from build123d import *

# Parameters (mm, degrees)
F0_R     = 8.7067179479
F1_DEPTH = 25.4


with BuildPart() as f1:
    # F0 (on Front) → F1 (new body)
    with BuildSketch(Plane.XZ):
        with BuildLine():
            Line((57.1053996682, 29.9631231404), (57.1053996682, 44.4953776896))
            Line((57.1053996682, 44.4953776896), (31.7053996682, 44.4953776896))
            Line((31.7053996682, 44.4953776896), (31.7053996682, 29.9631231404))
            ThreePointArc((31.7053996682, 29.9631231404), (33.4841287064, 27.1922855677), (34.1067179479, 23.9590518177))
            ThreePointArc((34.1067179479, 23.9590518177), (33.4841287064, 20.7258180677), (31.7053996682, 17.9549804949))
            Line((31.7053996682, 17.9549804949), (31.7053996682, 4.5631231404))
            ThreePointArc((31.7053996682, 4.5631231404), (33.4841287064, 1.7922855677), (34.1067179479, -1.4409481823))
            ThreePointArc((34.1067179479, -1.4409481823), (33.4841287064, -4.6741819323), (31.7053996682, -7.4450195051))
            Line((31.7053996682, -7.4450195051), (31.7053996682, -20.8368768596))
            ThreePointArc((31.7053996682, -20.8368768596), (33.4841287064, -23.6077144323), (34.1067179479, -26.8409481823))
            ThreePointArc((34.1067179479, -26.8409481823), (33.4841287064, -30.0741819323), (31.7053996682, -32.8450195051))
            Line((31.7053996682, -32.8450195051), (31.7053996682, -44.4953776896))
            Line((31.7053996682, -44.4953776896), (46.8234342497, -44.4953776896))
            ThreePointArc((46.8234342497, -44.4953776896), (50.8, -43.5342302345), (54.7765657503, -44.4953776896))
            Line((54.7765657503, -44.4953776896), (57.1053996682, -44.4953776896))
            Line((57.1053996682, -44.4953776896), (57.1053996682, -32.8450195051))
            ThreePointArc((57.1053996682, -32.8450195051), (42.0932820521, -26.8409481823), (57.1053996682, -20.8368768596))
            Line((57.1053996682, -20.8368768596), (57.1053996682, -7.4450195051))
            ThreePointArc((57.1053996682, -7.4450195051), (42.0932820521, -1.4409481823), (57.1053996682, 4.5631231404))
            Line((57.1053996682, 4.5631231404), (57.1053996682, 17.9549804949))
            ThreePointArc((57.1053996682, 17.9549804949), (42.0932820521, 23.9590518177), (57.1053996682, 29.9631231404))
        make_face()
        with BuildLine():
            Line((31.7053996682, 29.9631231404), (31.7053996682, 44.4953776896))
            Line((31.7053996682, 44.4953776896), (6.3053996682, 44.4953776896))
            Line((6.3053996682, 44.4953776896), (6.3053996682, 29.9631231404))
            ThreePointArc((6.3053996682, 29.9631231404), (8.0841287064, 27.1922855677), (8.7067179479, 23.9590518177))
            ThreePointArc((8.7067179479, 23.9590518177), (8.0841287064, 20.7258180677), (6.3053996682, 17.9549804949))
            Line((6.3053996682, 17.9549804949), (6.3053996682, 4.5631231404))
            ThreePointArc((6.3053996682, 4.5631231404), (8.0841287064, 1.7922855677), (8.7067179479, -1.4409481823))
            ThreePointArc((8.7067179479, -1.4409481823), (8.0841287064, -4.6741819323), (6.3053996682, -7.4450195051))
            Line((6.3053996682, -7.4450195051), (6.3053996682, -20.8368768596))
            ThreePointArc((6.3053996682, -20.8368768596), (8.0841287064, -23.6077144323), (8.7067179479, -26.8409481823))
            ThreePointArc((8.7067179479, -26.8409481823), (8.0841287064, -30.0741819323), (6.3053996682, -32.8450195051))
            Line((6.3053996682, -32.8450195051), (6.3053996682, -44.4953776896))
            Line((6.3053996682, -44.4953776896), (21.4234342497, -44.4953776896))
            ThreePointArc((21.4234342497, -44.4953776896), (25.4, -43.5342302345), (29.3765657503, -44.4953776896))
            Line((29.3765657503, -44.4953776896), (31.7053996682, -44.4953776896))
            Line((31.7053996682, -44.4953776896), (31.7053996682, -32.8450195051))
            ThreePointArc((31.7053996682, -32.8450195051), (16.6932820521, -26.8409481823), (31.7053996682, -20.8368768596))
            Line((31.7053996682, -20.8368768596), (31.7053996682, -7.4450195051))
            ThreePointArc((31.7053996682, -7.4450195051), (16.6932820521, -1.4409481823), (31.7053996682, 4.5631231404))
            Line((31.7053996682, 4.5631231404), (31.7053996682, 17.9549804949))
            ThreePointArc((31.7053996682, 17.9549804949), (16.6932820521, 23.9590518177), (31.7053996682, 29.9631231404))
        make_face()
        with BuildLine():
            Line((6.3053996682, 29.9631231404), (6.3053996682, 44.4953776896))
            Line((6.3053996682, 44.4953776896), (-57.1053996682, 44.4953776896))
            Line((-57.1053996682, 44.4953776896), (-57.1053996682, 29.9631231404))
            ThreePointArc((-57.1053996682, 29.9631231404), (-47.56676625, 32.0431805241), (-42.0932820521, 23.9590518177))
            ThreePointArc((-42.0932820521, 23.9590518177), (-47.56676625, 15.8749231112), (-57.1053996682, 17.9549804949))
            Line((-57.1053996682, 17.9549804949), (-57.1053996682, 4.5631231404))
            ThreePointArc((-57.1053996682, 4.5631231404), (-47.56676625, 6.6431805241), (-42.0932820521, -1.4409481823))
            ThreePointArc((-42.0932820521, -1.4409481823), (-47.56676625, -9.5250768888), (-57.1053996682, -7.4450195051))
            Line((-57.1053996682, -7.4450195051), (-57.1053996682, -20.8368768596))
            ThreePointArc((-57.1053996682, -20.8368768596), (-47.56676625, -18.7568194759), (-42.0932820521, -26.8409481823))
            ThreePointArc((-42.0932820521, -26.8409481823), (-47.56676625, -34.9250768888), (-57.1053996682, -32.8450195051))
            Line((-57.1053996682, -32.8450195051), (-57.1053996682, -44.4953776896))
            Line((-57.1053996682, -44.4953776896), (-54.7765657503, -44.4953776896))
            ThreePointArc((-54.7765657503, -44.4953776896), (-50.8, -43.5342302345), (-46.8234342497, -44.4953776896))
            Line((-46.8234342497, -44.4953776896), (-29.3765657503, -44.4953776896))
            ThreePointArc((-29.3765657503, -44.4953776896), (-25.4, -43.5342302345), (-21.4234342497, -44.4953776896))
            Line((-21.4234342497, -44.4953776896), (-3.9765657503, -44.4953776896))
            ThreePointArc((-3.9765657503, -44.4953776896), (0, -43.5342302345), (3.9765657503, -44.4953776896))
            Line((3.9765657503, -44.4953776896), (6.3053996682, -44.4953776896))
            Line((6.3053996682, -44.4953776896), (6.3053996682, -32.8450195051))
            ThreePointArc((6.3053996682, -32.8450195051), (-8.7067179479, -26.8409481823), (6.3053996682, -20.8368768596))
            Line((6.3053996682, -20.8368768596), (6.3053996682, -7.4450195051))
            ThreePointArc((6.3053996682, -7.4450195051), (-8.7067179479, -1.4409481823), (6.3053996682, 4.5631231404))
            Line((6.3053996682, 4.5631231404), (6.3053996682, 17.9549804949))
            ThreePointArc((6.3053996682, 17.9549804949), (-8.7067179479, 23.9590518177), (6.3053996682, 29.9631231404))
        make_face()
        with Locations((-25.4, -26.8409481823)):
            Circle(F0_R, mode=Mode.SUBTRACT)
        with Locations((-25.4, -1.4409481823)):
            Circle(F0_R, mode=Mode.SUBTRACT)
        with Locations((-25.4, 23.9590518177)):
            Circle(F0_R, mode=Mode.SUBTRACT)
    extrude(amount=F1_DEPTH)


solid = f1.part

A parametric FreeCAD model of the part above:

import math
import FreeCAD as App
import Part
import Sketcher
from FreeCAD import Vector
Q = App.Units.Quantity

doc = App.newDocument("Part")
body = doc.addObject("PartDesign::Body", "Body")

sketch1 = doc.addObject("Sketcher::SketchObject", "Sketch")
body.addObject(sketch1)
sketch1.AttachmentSupport = (doc.XZ_Plane, [""])
sketch1.MapMode = "FlatFace"
sketch1.addGeometry(Part.LineSegment(Vector(57.1, 30, 0), Vector(57.1, 44.5, 0)), False)
sketch1.addGeometry(Part.LineSegment(Vector(57.1, 44.5, 0), Vector(-57.1, 44.5, 0)), False)
sketch1.addGeometry(Part.LineSegment(Vector(-57.1, 44.5, 0), Vector(-57.1, 30, 0)), False)
sketch1.addGeometry(Part.ArcOfCircle(Part.Circle(Vector(-50.8, 24, 0), Vector(0, 0, 1), 8.7), math.radians(0), math.radians(136)), False)
sketch1.addGeometry(Part.ArcOfCircle(Part.Circle(Vector(-50.8, 24, 0), Vector(0, 0, 1), 8.7), math.radians(-136), math.radians(0)), False)
sketch1.addGeometry(Part.LineSegment(Vector(-57.1, 18, 0), Vector(-57.1, 4.6, 0)), False)
sketch1.addGeometry(Part.ArcOfCircle(Part.Circle(Vector(-50.8, -1.4, 0), Vector(0, 0, 1), 8.7), math.radians(0), math.radians(136)), False)
sketch1.addGeometry(Part.ArcOfCircle(Part.Circle(Vector(-50.8, -1.4, 0), Vector(0, 0, 1), 8.7), math.radians(-136), math.radians(0)), False)
sketch1.addGeometry(Part.LineSegment(Vector(-57.1, -7.4, 0), Vector(-57.1, -20.8, 0)), False)
sketch1.addGeometry(Part.ArcOfCircle(Part.Circle(Vector(-50.8, -26.8, 0), Vector(0, 0, 1), 8.7), math.radians(0), math.radians(136)), False)
sketch1.addGeometry(Part.ArcOfCircle(Part.Circle(Vector(-50.8, -26.8, 0), Vector(0, 0, 1), 8.7), math.radians(-136), math.radians(0)), False)
sketch1.addGeometry(Part.LineSegment(Vector(-57.1, -32.8, 0), Vector(-57.1, -44.5, 0)), False)
sketch1.addGeometry(Part.LineSegment(Vector(-57.1, -44.5, 0), Vector(-54.8, -44.5, 0)), False)
sketch1.addGeometry(Part.ArcOfCircle(Part.Circle(Vector(-50.8, -52.2, 0), Vector(0, 0, 1), 8.7), math.radians(63), math.radians(117)), False)
sketch1.addGeometry(Part.LineSegment(Vector(-46.8, -44.5, 0), Vector(-29.4, -44.5, 0)), False)
sketch1.addGeometry(Part.ArcOfCircle(Part.Circle(Vector(-25.4, -52.2, 0), Vector(0, 0, 1), 8.7), math.radians(63), math.radians(117)), False)
sketch1.addGeometry(Part.LineSegment(Vector(-21.4, -44.5, 0), Vector(-4, -44.5, 0)), False)
sketch1.addGeometry(Part.ArcOfCircle(Part.Circle(Vector(0, -52.2, 0), Vector(0, 0, 1), 8.7), math.radians(63), math.radians(117)), False)
sketch1.addGeometry(Part.LineSegment(Vector(4, -44.5, 0), Vector(21.4, -44.5, 0)), False)
sketch1.addGeometry(Part.ArcOfCircle(Part.Circle(Vector(25.4, -52.2, 0), Vector(0, 0, 1), 8.7), math.radians(63), math.radians(117)), False)
sketch1.addGeometry(Part.LineSegment(Vector(29.4, -44.5, 0), Vector(46.8, -44.5, 0)), False)
sketch1.addGeometry(Part.ArcOfCircle(Part.Circle(Vector(50.8, -52.2, 0), Vector(0, 0, 1), 8.7), math.radians(63), math.radians(117)), False)
sketch1.addGeometry(Part.LineSegment(Vector(54.8, -44.5, 0), Vector(57.1, -44.5, 0)), False)
sketch1.addGeometry(Part.LineSegment(Vector(57.1, -44.5, 0), Vector(57.1, -32.8, 0)), False)
sketch1.addGeometry(Part.ArcOfCircle(Part.Circle(Vector(50.8, -26.8, 0), Vector(0, 0, 1), 8.7), math.radians(44), math.radians(316)), False)
sketch1.addGeometry(Part.LineSegment(Vector(57.1, -20.8, 0), Vector(57.1, -7.4, 0)), False)
sketch1.addGeometry(Part.ArcOfCircle(Part.Circle(Vector(50.8, -1.4, 0), Vector(0, 0, 1), 8.7), math.radians(44), math.radians(316)), False)
sketch1.addGeometry(Part.LineSegment(Vector(57.1, 4.6, 0), Vector(57.1, 18, 0)), False)
sketch1.addGeometry(Part.ArcOfCircle(Part.Circle(Vector(50.8, 24, 0), Vector(0, 0, 1), 8.7), math.radians(44), math.radians(316)), False)
sketch1.addGeometry(Part.Circle(Vector(-25.4, -26.8, 0), Vector(0, 0, 1), 8.7), False)
sketch1.addGeometry(Part.ArcOfCircle(Part.Circle(Vector(0, -26.8, 0), Vector(0, 0, 1), 8.7), math.radians(0), math.radians(44)), False)
sketch1.addGeometry(Part.ArcOfCircle(Part.Circle(Vector(0, -26.8, 0), Vector(0, 0, 1), 8.7), math.radians(-44), math.radians(0)), False)
sketch1.addGeometry(Part.ArcOfCircle(Part.Circle(Vector(0, -26.8, 0), Vector(0, 0, 1), 8.7), math.radians(44), math.radians(316)), False)
sketch1.addGeometry(Part.ArcOfCircle(Part.Circle(Vector(25.4, -26.8, 0), Vector(0, 0, 1), 8.7), math.radians(0), math.radians(44)), False)
sketch1.addGeometry(Part.ArcOfCircle(Part.Circle(Vector(25.4, -26.8, 0), Vector(0, 0, 1), 8.7), math.radians(-44), math.radians(0)), False)
sketch1.addGeometry(Part.ArcOfCircle(Part.Circle(Vector(25.4, -26.8, 0), Vector(0, 0, 1), 8.7), math.radians(44), math.radians(316)), False)
sketch1.addGeometry(Part.ArcOfCircle(Part.Circle(Vector(0, -1.4, 0), Vector(0, 0, 1), 8.7), math.radians(0), math.radians(44)), False)
sketch1.addGeometry(Part.ArcOfCircle(Part.Circle(Vector(0, -1.4, 0), Vector(0, 0, 1), 8.7), math.radians(-44), math.radians(0)), False)
sketch1.addGeometry(Part.ArcOfCircle(Part.Circle(Vector(0, -1.4, 0), Vector(0, 0, 1), 8.7), math.radians(44), math.radians(316)), False)
sketch1.addGeometry(Part.ArcOfCircle(Part.Circle(Vector(25.4, -1.4, 0), Vector(0, 0, 1), 8.7), math.radians(0), math.radians(44)), False)
sketch1.addGeometry(Part.ArcOfCircle(Part.Circle(Vector(25.4, -1.4, 0), Vector(0, 0, 1), 8.7), math.radians(-44), math.radians(0)), False)
sketch1.addGeometry(Part.ArcOfCircle(Part.Circle(Vector(25.4, -1.4, 0), Vector(0, 0, 1), 8.7), math.radians(44), math.radians(316)), False)
sketch1.addGeometry(Part.Circle(Vector(-25.4, -1.4, 0), Vector(0, 0, 1), 8.7), False)
sketch1.addGeometry(Part.Circle(Vector(-25.4, 24, 0), Vector(0, 0, 1), 8.7), False)
sketch1.addGeometry(Part.ArcOfCircle(Part.Circle(Vector(0, 24, 0), Vector(0, 0, 1), 8.7), math.radians(0), math.radians(44)), False)
sketch1.addGeometry(Part.ArcOfCircle(Part.Circle(Vector(0, 24, 0), Vector(0, 0, 1), 8.7), math.radians(-44), math.radians(0)), False)
sketch1.addGeometry(Part.ArcOfCircle(Part.Circle(Vector(0, 24, 0), Vector(0, 0, 1), 8.7), math.radians(44), math.radians(316)), False)
sketch1.addGeometry(Part.ArcOfCircle(Part.Circle(Vector(25.4, 24, 0), Vector(0, 0, 1), 8.7), math.radians(0), math.radians(44)), False)
sketch1.addGeometry(Part.ArcOfCircle(Part.Circle(Vector(25.4, 24, 0), Vector(0, 0, 1), 8.7), math.radians(-44), math.radians(0)), False)
sketch1.addGeometry(Part.ArcOfCircle(Part.Circle(Vector(25.4, 24, 0), Vector(0, 0, 1), 8.7), math.radians(44), math.radians(316)), False)
sketch1.addConstraint(Sketcher.Constraint("Coincident", 0, 2, 1, 1))
sketch1.addConstraint(Sketcher.Constraint("Coincident", 1, 2, 2, 1))
sketch1.addConstraint(Sketcher.Constraint("Coincident", 2, 2, 3, 2))
sketch1.addConstraint(Sketcher.Constraint("Tangent", 3, 1, 4, 2))
sketch1.addConstraint(Sketcher.Constraint("Coincident", 4, 1, 5, 1))
sketch1.addConstraint(Sketcher.Constraint("Coincident", 5, 2, 6, 2))
sketch1.addConstraint(Sketcher.Constraint("Tangent", 6, 1, 7, 2))
sketch1.addConstraint(Sketcher.Constraint("Coincident", 7, 1, 8, 1))
sketch1.addConstraint(Sketcher.Constraint("Coincident", 8, 2, 9, 2))
sketch1.addConstraint(Sketcher.Constraint("Tangent", 9, 1, 10, 2))
sketch1.addConstraint(Sketcher.Constraint("Coincident", 10, 1, 11, 1))
sketch1.addConstraint(Sketcher.Constraint("Coincident", 11, 2, 12, 1))
sketch1.addConstraint(Sketcher.Constraint("Coincident", 12, 2, 13, 2))
sketch1.addConstraint(Sketcher.Constraint("Coincident", 13, 1, 14, 1))
sketch1.addConstraint(Sketcher.Constraint("Coincident", 14, 2, 15, 2))
sketch1.addConstraint(Sketcher.Constraint("Coincident", 15, 1, 16, 1))
sketch1.addConstraint(Sketcher.Constraint("Coincident", 16, 2, 17, 2))
sketch1.addConstraint(Sketcher.Constraint("Coincident", 17, 1, 18, 1))
sketch1.addConstraint(Sketcher.Constraint("Coincident", 18, 2, 19, 2))
sketch1.addConstraint(Sketcher.Constraint("Coincident", 19, 1, 20, 1))
sketch1.addConstraint(Sketcher.Constraint("Coincident", 20, 2, 21, 2))
sketch1.addConstraint(Sketcher.Constraint("Coincident", 21, 1, 22, 1))
sketch1.addConstraint(Sketcher.Constraint("Coincident", 22, 2, 23, 1))
sketch1.addConstraint(Sketcher.Constraint("Coincident", 23, 2, 24, 2))
sketch1.addConstraint(Sketcher.Constraint("Coincident", 24, 1, 25, 1))
sketch1.addConstraint(Sketcher.Constraint("Coincident", 25, 2, 26, 2))
sketch1.addConstraint(Sketcher.Constraint("Coincident", 26, 1, 27, 1))
sketch1.addConstraint(Sketcher.Constraint("Coincident", 27, 2, 28, 2))
sketch1.addConstraint(Sketcher.Constraint("Coincident", 28, 1, 0, 1))
sketch1.addConstraint(Sketcher.Constraint("Tangent", 30, 1, 31, 2))
sketch1.addConstraint(Sketcher.Constraint("Tangent", 31, 1, 32, 2))
sketch1.addConstraint(Sketcher.Constraint("Tangent", 32, 1, 30, 2))
sketch1.addConstraint(Sketcher.Constraint("Tangent", 33, 1, 34, 2))
sketch1.addConstraint(Sketcher.Constraint("Tangent", 34, 1, 35, 2))
sketch1.addConstraint(Sketcher.Constraint("Tangent", 35, 1, 33, 2))
sketch1.addConstraint(Sketcher.Constraint("Tangent", 36, 1, 37, 2))
sketch1.addConstraint(Sketcher.Constraint("Tangent", 37, 1, 38, 2))
sketch1.addConstraint(Sketcher.Constraint("Tangent", 38, 1, 36, 2))
sketch1.addConstraint(Sketcher.Constraint("Tangent", 39, 1, 40, 2))
sketch1.addConstraint(Sketcher.Constraint("Tangent", 40, 1, 41, 2))
sketch1.addConstraint(Sketcher.Constraint("Tangent", 41, 1, 39, 2))
sketch1.addConstraint(Sketcher.Constraint("Tangent", 44, 1, 45, 2))
sketch1.addConstraint(Sketcher.Constraint("Tangent", 45, 1, 46, 2))
sketch1.addConstraint(Sketcher.Constraint("Tangent", 46, 1, 44, 2))
sketch1.addConstraint(Sketcher.Constraint("Tangent", 47, 1, 48, 2))
sketch1.addConstraint(Sketcher.Constraint("Tangent", 48, 1, 49, 2))
sketch1.addConstraint(Sketcher.Constraint("Tangent", 49, 1, 47, 2))
sketch1.addConstraint(Sketcher.Constraint("Vertical", 0))
sketch1.addConstraint(Sketcher.Constraint("Horizontal", 1))
sketch1.addConstraint(Sketcher.Constraint("Vertical", 2))
sketch1.addConstraint(Sketcher.Constraint("Vertical", 5))
sketch1.addConstraint(Sketcher.Constraint("Vertical", 8))
sketch1.addConstraint(Sketcher.Constraint("Vertical", 11))
sketch1.addConstraint(Sketcher.Constraint("Horizontal", 12))
sketch1.addConstraint(Sketcher.Constraint("Horizontal", 14))
sketch1.addConstraint(Sketcher.Constraint("Horizontal", 16))
sketch1.addConstraint(Sketcher.Constraint("Horizontal", 18))
sketch1.addConstraint(Sketcher.Constraint("Horizontal", 20))
sketch1.addConstraint(Sketcher.Constraint("Horizontal", 22))
sketch1.addConstraint(Sketcher.Constraint("Vertical", 23))
sketch1.addConstraint(Sketcher.Constraint("Vertical", 25))
sketch1.addConstraint(Sketcher.Constraint("Vertical", 27))
sketch1.addConstraint(Sketcher.Constraint("Equal", 3, 4))
sketch1.addConstraint(Sketcher.Constraint("Equal", 4, 6))
sketch1.addConstraint(Sketcher.Constraint("Equal", 6, 7))
sketch1.addConstraint(Sketcher.Constraint("Equal", 7, 9))
sketch1.addConstraint(Sketcher.Constraint("Equal", 9, 10))
sketch1.addConstraint(Sketcher.Constraint("Equal", 10, 13))
sketch1.addConstraint(Sketcher.Constraint("Equal", 13, 15))
sketch1.addConstraint(Sketcher.Constraint("Equal", 15, 17))
sketch1.addConstraint(Sketcher.Constraint("Equal", 17, 19))
sketch1.addConstraint(Sketcher.Constraint("Equal", 19, 21))
sketch1.addConstraint(Sketcher.Constraint("Equal", 21, 24))
sketch1.addConstraint(Sketcher.Constraint("Equal", 24, 26))
sketch1.addConstraint(Sketcher.Constraint("Equal", 26, 28))
sketch1.addConstraint(Sketcher.Constraint("Equal", 28, 29))
sketch1.addConstraint(Sketcher.Constraint("Equal", 29, 30))
sketch1.addConstraint(Sketcher.Constraint("Equal", 32, 33))
sketch1.addConstraint(Sketcher.Constraint("Equal", 35, 36))
sketch1.addConstraint(Sketcher.Constraint("Equal", 38, 39))
sketch1.addConstraint(Sketcher.Constraint("Equal", 41, 42))
sketch1.addConstraint(Sketcher.Constraint("Equal", 42, 43))
sketch1.addConstraint(Sketcher.Constraint("Equal", 43, 44))
sketch1.addConstraint(Sketcher.Constraint("Equal", 46, 47))
sketch1.addConstraint(Sketcher.Constraint("Symmetric", 0, 2, 11, 2, -1, 1))
sketch1.addConstraint(Sketcher.Constraint("Symmetric", 1, 2, 22, 2, -1, 1))
sketch1.addConstraint(Sketcher.Constraint("Symmetric", 15, 3, 19, 3, -2))
sketch1.addConstraint(Sketcher.Constraint("Symmetric", 13, 3, 21, 3, -2))
sketch1.addConstraint(Sketcher.Constraint("Symmetric", 9, 3, 24, 3, -2))
sketch1.addConstraint(Sketcher.Constraint("Symmetric", 6, 3, 26, 3, -2))
sketch1.addConstraint(Sketcher.Constraint("Symmetric", 3, 3, 28, 3, -2))
sketch1.addConstraint(Sketcher.Constraint("Symmetric", 29, 3, 33, 3, -2))
sketch1.addConstraint(Sketcher.Constraint("Symmetric", 39, 3, 42, 3, -2))
sketch1.addConstraint(Sketcher.Constraint("Symmetric", 43, 3, 47, 3, -2))
sketch1.addConstraint(Sketcher.Constraint("Symmetric", 16, 2, 17, 1, -2))
sketch1.addConstraint(Sketcher.Constraint("PointOnObject", 30, 3, -2))
sketch1.addConstraint(Sketcher.Constraint("PointOnObject", 36, 3, -2))
sketch1.addConstraint(Sketcher.Constraint("PointOnObject", 44, 3, -2))
sketch1.addConstraint(Sketcher.Constraint("Horizontal", 13, 3, 15, 3))
sketch1.addConstraint(Sketcher.Constraint("Horizontal", 15, 3, 17, 3))
sketch1.addConstraint(Sketcher.Constraint("Horizontal", 24, 3, 29, 3))
sketch1.addConstraint(Sketcher.Constraint("Horizontal", 29, 3, 30, 3))
sketch1.addConstraint(Sketcher.Constraint("Horizontal", 26, 3, 36, 3))
sketch1.addConstraint(Sketcher.Constraint("Horizontal", 38, 3, 39, 3))
sketch1.addConstraint(Sketcher.Constraint("Horizontal", 28, 3, 43, 3))
sketch1.addConstraint(Sketcher.Constraint("Horizontal", 43, 3, 44, 3))
sketch1.addConstraint(Sketcher.Constraint("Horizontal", 49, 3, 3, 1))
sketch1.addConstraint(Sketcher.Constraint("Horizontal", 42, 3, 6, 1))
sketch1.addConstraint(Sketcher.Constraint("Horizontal", 35, 3, 9, 1))
sketch1.addConstraint(Sketcher.Constraint("Horizontal", 12, 2, 13, 1))
sketch1.addConstraint(Sketcher.Constraint("Horizontal", 14, 2, 15, 1))
sketch1.addConstraint(Sketcher.Constraint("Horizontal", 18, 2, 19, 1))
sketch1.addConstraint(Sketcher.Constraint("Horizontal", 10, 1, 23, 2))
sketch1.addConstraint(Sketcher.Constraint("Horizontal", 8, 2, 24, 1))
sketch1.addConstraint(Sketcher.Constraint("Horizontal", 5, 2, 26, 1))
sketch1.addConstraint(Sketcher.Constraint("Horizontal", 9, 1, 30, 1))
sketch1.addConstraint(Sketcher.Constraint("Horizontal", 23, 2, 31, 1))
sketch1.addConstraint(Sketcher.Constraint("Horizontal", 24, 1, 32, 1))
sketch1.addConstraint(Sketcher.Constraint("Horizontal", 30, 1, 33, 1))
sketch1.addConstraint(Sketcher.Constraint("Horizontal", 31, 1, 34, 1))
sketch1.addConstraint(Sketcher.Constraint("Horizontal", 32, 1, 35, 1))
sketch1.addConstraint(Sketcher.Constraint("Horizontal", 6, 1, 36, 1))
sketch1.addConstraint(Sketcher.Constraint("Horizontal", 25, 2, 37, 1))
sketch1.addConstraint(Sketcher.Constraint("Horizontal", 26, 1, 38, 1))
sketch1.addConstraint(Sketcher.Constraint("Horizontal", 36, 1, 39, 1))
sketch1.addConstraint(Sketcher.Constraint("Horizontal", 37, 1, 40, 1))
sketch1.addConstraint(Sketcher.Constraint("Horizontal", 38, 1, 41, 1))
sketch1.addConstraint(Sketcher.Constraint("Horizontal", 3, 1, 44, 1))
sketch1.addConstraint(Sketcher.Constraint("Horizontal", 27, 2, 45, 1))
sketch1.addConstraint(Sketcher.Constraint("Horizontal", 28, 1, 46, 1))
sketch1.addConstraint(Sketcher.Constraint("Horizontal", 44, 1, 47, 1))
sketch1.addConstraint(Sketcher.Constraint("Horizontal", 45, 1, 48, 1))
sketch1.addConstraint(Sketcher.Constraint("Horizontal", 46, 1, 49, 1))
sketch1.addConstraint(Sketcher.Constraint("Vertical", 4, 3, 6, 3))
sketch1.addConstraint(Sketcher.Constraint("Vertical", 7, 3, 9, 3))
sketch1.addConstraint(Sketcher.Constraint("Vertical", 10, 3, 13, 3))
sketch1.addConstraint(Sketcher.Constraint("Vertical", 15, 3, 29, 3))
sketch1.addConstraint(Sketcher.Constraint("Vertical", 35, 3, 39, 3))
sketch1.addConstraint(Sketcher.Constraint("Vertical", 42, 3, 43, 3))
sketch1.addConstraint(Sketcher.Constraint("Vertical", 2, 2, 4, 1))
sketch1.addConstraint(Sketcher.Constraint("Vertical", 5, 2, 7, 1))
sketch1.addConstraint(Sketcher.Constraint("Equal", 14, 16))
sketch1.addConstraint(Sketcher.Constraint("Equal", 5, 8))
sketch1.addConstraint(Sketcher.Constraint("DistanceX", 3, 3, -1, 1, Q("2 in")))
sketch1.addConstraint(Sketcher.Constraint("Diameter", 29, 17.413436))
sketch1.addConstraint(Sketcher.Constraint("DistanceX", 1, 2, 1, 1, 114.210799))
sketch1.addConstraint(Sketcher.Constraint("DistanceX", 14, 1, 14, 2, 17.446868))
sketch1.addConstraint(Sketcher.Constraint("DistanceY", 11, 2, 11, 1, 11.650358))
sketch1.addConstraint(Sketcher.Constraint("DistanceY", 0, 1, 0, 2, 14.532255))
sketch1.addConstraint(Sketcher.Constraint("DistanceY", 5, 2, 5, 1, 13.391857))
pad1 = doc.addObject("PartDesign::Pad", "Pad")
body.addObject(pad1)
pad1.Profile = sketch1
pad1.Length = Q("1 in")

doc.recompute()
